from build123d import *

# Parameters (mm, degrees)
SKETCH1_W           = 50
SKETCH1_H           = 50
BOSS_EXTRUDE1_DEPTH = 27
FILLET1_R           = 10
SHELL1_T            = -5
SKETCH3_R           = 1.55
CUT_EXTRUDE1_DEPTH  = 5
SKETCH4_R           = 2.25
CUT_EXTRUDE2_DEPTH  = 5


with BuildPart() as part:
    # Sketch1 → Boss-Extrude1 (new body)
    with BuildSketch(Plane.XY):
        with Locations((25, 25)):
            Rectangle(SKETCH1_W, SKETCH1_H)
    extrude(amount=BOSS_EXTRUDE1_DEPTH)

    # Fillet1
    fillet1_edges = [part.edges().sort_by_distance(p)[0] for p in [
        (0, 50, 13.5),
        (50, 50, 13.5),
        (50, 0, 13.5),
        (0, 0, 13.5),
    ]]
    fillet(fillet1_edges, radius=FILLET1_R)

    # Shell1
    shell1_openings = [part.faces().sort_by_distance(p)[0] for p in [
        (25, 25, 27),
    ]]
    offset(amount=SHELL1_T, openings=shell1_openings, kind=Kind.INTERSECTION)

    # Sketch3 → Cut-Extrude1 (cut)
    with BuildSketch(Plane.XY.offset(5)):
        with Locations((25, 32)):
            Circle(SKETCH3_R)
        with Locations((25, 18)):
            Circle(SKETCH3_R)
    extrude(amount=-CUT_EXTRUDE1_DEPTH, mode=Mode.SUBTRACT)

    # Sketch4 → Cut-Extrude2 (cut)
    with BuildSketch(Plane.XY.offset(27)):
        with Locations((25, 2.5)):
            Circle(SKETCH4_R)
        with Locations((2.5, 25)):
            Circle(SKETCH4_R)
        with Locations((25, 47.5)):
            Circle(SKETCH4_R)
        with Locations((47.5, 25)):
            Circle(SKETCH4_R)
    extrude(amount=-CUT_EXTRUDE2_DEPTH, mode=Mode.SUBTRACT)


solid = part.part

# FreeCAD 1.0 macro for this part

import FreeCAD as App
import Part
import Sketcher
Q = App.Units.Quantity


def edges_at(feature, points):
    """Names of the edges that pass closest to the given points."""
    edges = feature.Shape.Edges
    near = lambda p: min(range(len(edges)), key=lambda i: edges[i].distToShape(Part.Vertex(*p))[0])
    return sorted({f"Edge{near(p) + 1}" for p in points})


def faces_at(feature, points):
    """Names of the faces that lie closest to the given points."""
    faces = feature.Shape.Faces
    near = lambda p: min(range(len(faces)), key=lambda i: faces[i].distToShape(Part.Vertex(*p))[0])
    return sorted({f"Face{near(p) + 1}" for p in points})

doc = App.newDocument("Part")
params = doc.addObject("Spreadsheet::Sheet", "Params")
for row, (alias, value) in enumerate([
    ("sketch1_width", "50 mm"),
    ("pad1_length", "27 mm"),
    ("fillet_radius", "10 mm"),
    ("thickness_wall", "5 mm"),
    ("sketch2_diameter", "3.1 mm"),
    ("pocket1_length", "5 mm"),
    ("sketch3_diameter", "4.5 mm"),
    ("pocket2_length", "5 mm"),
], start=1):
    params.set(f"A{row}", alias)
    params.set(f"B{row}", "=" + value)
    params.setAlias(f"B{row}", alias)

body = doc.addObject("PartDesign::Body", "Body")

sketch1 = body.newObject("Sketcher::SketchObject", "Sketch")
sketch1.AttachmentSupport = (doc.getObject("XY_Plane"), [""])
sketch1.MapMode = "FlatFace"
sketch1.addGeometry(Part.LineSegment(App.Vector(0, 50, 0), App.Vector(0, 0, 0)), False)
sketch1.addGeometry(Part.LineSegment(App.Vector(0, 0, 0), App.Vector(50, 0, 0)), False)
sketch1.addGeometry(Part.LineSegment(App.Vector(50, 0, 0), App.Vector(50, 50, 0)), False)
sketch1.addGeometry(Part.LineSegment(App.Vector(50, 50, 0), App.Vector(0, 50, 0)), False)
sketch1.addConstraint(Sketcher.Constraint("Coincident", 0, 2, 1, 1))
sketch1.addConstraint(Sketcher.Constraint("Coincident", 1, 2, 2, 1))
sketch1.addConstraint(Sketcher.Constraint("Coincident", 2, 2, 3, 1))
sketch1.addConstraint(Sketcher.Constraint("Coincident", 3, 2, 0, 1))
sketch1.addConstraint(Sketcher.Constraint("Vertical", 0))
sketch1.addConstraint(Sketcher.Constraint("Horizontal", 1))
sketch1.addConstraint(Sketcher.Constraint("Vertical", 2))
sketch1.addConstraint(Sketcher.Constraint("Horizontal", 3))
sketch1.addConstraint(Sketcher.Constraint("Coincident", 0, 2, -1, 1))
sketch1.addConstraint(Sketcher.Constraint("Equal", 3, 0))
sketch1.addConstraint(Sketcher.Constraint("DistanceX", 1, 1, 1, 2, Q("50 mm")))
sketch1.setExpression("Constraints[10]", "Params.sketch1_width")
pad1 = body.newObject("PartDesign::Pad", "Pad")
pad1.Profile = sketch1
pad1.setExpression("Length", "Params.pad1_length")
doc.recompute()

fillet = body.newObject("PartDesign::Fillet", "Fillet")
fillet.Base = (pad1, edges_at(pad1, [
    (0, 50, 13.5),
    (50, 50, 13.5),
    (50, 0, 13.5),
    (0, 0, 13.5),
]))
fillet.setExpression("Radius", "Params.fillet_radius")
doc.recompute()

thickness = body.newObject("PartDesign::Thickness", "Thickness")
thickness.Base = (fillet, faces_at(fillet, [(25, 25, 27)]))
thickness.setExpression("Value", "Params.thickness_wall")
thickness.Reversed = True
thickness.Join = "Intersection"

sketch2 = body.newObject("Sketcher::SketchObject", "Sketch001")
sketch2.AttachmentSupport = (doc.getObject("XY_Plane"), [""])
sketch2.MapMode = "FlatFace"
sketch2.AttachmentOffset = App.Placement(App.Vector(0, 0, 5), App.Rotation())
sketch2.addGeometry(Part.Circle(App.Vector(25, 32, 0), App.Vector(0, 0, 1), 1.6), False)
sketch2.addGeometry(Part.Circle(App.Vector(25, 18, 0), App.Vector(0, 0, 1), 1.6), False)
sketch2.addConstraint(Sketcher.Constraint("Equal", 0, 1))
sketch2.addConstraint(Sketcher.Constraint("Vertical", 0, 3, 1, 3))
sketch2.addConstraint(Sketcher.Constraint("Diameter", 0, Q("3.1 mm")))
sketch2.addConstraint(Sketcher.Constraint("DistanceX", -1, 1, 0, 3, Q("25 mm")))
sketch2.addConstraint(Sketcher.Constraint("DistanceY", -1, 1, 0, 3, Q("32 mm")))
sketch2.addConstraint(Sketcher.Constraint("DistanceY", -1, 1, 1, 3, Q("18 mm")))
sketch2.setExpression("Constraints[2]", "Params.sketch2_diameter")
pocket1 = body.newObject("PartDesign::Pocket", "Pocket")
pocket1.Profile = sketch2
pocket1.setExpression("Length", "Params.pocket1_length")

sketch3 = body.newObject("Sketcher::SketchObject", "Sketch002")
sketch3.AttachmentSupport = (doc.getObject("XY_Plane"), [""])
sketch3.MapMode = "FlatFace"
sketch3.AttachmentOffset = App.Placement(App.Vector(0, 0, 27), App.Rotation())
sketch3.addGeometry(Part.Circle(App.Vector(25, 2.5, 0), App.Vector(0, 0, 1), 2.2), False)
sketch3.addGeometry(Part.Circle(App.Vector(2.5, 25, 0), App.Vector(0, 0, 1), 2.2), False)
sketch3.addGeometry(Part.Circle(App.Vector(25, 47.5, 0), App.Vector(0, 0, 1), 2.2), False)
sketch3.addGeometry(Part.Circle(App.Vector(47.5, 25, 0), App.Vector(0, 0, 1), 2.2), False)
sketch3.addConstraint(Sketcher.Constraint("Equal", 0, 1))
sketch3.addConstraint(Sketcher.Constraint("Equal", 1, 2))
sketch3.addConstraint(Sketcher.Constraint("Equal", 2, 3))
sketch3.addConstraint(Sketcher.Constraint("Horizontal", 1, 3, 3, 3))
sketch3.addConstraint(Sketcher.Constraint("Vertical", 0, 3, 2, 3))
sketch3.addConstraint(Sketcher.Constraint("Diameter", 0, Q("4.5 mm")))
sketch3.addConstraint(Sketcher.Constraint("DistanceX", -1, 1, 0, 3, Q("25 mm")))
sketch3.addConstraint(Sketcher.Constraint("DistanceY", -1, 1, 1, 3, Q("25 mm")))
sketch3.addConstraint(Sketcher.Constraint("DistanceY", 0, 3, 2, 3, Q("45 mm")))
sketch3.addConstraint(Sketcher.Constraint("DistanceX", 1, 3, 3, 3, Q("45 mm")))
sketch3.addConstraint(Sketcher.Constraint("DistanceY", -1, 1, 0, 3, Q("2.5 mm")))
sketch3.addConstraint(Sketcher.Constraint("DistanceX", -1, 1, 1, 3, Q("2.5 mm")))
sketch3.setExpression("Constraints[5]", "Params.sketch3_diameter")
pocket2 = body.newObject("PartDesign::Pocket", "Pocket001")
pocket2.Profile = sketch3
pocket2.setExpression("Length", "Params.pocket2_length")

doc.recompute()
